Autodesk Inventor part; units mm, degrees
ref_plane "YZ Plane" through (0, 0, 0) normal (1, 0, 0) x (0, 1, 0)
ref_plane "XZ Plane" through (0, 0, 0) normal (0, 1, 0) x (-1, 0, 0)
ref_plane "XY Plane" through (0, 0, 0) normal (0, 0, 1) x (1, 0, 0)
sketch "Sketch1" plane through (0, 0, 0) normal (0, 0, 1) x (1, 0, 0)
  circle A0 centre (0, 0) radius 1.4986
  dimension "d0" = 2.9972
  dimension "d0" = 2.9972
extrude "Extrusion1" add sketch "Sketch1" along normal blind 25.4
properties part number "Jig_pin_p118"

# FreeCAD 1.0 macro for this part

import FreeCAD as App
import Part
import Sketcher
from FreeCAD import Vector
Q = App.Units.Quantity

doc = App.newDocument("Part")
params = doc.addObject("Spreadsheet::Sheet", "Params")
for row, (alias, value) in enumerate([
    ("sketch1_diameter", "0.118 in"),
    ("pad1_length", "1 in"),
], start=1):
    params.set(f"A{row}", alias)
    params.set(f"B{row}", "=" + value)
    params.setAlias(f"B{row}", alias)

body = doc.addObject("PartDesign::Body", "Body")

# Sketch on XY plane
sketch1 = body.newObject("Sketcher::SketchObject", "Sketch")
sketch1.AttachmentSupport = (doc.getObject("XY_Plane"), [""])
sketch1.MapMode = "FlatFace"
sketch1.addGeometry(Part.Circle(Vector(0, 0, 0), Vector(0, 0, 1), 1.5), False)
sketch1.addConstraint([
    Sketcher.Constraint("Coincident", 0, 3, -1, 1),
    Sketcher.Constraint("Diameter", 0, Q("0.118 in")),
])
sketch1.setExpression("Constraints[1]", "Params.sketch1_diameter")
pad1 = body.newObject("PartDesign::Pad", "Pad")
pad1.Profile = sketch1
pad1.setExpression("Length", "Params.pad1_length")

doc.recompute()
